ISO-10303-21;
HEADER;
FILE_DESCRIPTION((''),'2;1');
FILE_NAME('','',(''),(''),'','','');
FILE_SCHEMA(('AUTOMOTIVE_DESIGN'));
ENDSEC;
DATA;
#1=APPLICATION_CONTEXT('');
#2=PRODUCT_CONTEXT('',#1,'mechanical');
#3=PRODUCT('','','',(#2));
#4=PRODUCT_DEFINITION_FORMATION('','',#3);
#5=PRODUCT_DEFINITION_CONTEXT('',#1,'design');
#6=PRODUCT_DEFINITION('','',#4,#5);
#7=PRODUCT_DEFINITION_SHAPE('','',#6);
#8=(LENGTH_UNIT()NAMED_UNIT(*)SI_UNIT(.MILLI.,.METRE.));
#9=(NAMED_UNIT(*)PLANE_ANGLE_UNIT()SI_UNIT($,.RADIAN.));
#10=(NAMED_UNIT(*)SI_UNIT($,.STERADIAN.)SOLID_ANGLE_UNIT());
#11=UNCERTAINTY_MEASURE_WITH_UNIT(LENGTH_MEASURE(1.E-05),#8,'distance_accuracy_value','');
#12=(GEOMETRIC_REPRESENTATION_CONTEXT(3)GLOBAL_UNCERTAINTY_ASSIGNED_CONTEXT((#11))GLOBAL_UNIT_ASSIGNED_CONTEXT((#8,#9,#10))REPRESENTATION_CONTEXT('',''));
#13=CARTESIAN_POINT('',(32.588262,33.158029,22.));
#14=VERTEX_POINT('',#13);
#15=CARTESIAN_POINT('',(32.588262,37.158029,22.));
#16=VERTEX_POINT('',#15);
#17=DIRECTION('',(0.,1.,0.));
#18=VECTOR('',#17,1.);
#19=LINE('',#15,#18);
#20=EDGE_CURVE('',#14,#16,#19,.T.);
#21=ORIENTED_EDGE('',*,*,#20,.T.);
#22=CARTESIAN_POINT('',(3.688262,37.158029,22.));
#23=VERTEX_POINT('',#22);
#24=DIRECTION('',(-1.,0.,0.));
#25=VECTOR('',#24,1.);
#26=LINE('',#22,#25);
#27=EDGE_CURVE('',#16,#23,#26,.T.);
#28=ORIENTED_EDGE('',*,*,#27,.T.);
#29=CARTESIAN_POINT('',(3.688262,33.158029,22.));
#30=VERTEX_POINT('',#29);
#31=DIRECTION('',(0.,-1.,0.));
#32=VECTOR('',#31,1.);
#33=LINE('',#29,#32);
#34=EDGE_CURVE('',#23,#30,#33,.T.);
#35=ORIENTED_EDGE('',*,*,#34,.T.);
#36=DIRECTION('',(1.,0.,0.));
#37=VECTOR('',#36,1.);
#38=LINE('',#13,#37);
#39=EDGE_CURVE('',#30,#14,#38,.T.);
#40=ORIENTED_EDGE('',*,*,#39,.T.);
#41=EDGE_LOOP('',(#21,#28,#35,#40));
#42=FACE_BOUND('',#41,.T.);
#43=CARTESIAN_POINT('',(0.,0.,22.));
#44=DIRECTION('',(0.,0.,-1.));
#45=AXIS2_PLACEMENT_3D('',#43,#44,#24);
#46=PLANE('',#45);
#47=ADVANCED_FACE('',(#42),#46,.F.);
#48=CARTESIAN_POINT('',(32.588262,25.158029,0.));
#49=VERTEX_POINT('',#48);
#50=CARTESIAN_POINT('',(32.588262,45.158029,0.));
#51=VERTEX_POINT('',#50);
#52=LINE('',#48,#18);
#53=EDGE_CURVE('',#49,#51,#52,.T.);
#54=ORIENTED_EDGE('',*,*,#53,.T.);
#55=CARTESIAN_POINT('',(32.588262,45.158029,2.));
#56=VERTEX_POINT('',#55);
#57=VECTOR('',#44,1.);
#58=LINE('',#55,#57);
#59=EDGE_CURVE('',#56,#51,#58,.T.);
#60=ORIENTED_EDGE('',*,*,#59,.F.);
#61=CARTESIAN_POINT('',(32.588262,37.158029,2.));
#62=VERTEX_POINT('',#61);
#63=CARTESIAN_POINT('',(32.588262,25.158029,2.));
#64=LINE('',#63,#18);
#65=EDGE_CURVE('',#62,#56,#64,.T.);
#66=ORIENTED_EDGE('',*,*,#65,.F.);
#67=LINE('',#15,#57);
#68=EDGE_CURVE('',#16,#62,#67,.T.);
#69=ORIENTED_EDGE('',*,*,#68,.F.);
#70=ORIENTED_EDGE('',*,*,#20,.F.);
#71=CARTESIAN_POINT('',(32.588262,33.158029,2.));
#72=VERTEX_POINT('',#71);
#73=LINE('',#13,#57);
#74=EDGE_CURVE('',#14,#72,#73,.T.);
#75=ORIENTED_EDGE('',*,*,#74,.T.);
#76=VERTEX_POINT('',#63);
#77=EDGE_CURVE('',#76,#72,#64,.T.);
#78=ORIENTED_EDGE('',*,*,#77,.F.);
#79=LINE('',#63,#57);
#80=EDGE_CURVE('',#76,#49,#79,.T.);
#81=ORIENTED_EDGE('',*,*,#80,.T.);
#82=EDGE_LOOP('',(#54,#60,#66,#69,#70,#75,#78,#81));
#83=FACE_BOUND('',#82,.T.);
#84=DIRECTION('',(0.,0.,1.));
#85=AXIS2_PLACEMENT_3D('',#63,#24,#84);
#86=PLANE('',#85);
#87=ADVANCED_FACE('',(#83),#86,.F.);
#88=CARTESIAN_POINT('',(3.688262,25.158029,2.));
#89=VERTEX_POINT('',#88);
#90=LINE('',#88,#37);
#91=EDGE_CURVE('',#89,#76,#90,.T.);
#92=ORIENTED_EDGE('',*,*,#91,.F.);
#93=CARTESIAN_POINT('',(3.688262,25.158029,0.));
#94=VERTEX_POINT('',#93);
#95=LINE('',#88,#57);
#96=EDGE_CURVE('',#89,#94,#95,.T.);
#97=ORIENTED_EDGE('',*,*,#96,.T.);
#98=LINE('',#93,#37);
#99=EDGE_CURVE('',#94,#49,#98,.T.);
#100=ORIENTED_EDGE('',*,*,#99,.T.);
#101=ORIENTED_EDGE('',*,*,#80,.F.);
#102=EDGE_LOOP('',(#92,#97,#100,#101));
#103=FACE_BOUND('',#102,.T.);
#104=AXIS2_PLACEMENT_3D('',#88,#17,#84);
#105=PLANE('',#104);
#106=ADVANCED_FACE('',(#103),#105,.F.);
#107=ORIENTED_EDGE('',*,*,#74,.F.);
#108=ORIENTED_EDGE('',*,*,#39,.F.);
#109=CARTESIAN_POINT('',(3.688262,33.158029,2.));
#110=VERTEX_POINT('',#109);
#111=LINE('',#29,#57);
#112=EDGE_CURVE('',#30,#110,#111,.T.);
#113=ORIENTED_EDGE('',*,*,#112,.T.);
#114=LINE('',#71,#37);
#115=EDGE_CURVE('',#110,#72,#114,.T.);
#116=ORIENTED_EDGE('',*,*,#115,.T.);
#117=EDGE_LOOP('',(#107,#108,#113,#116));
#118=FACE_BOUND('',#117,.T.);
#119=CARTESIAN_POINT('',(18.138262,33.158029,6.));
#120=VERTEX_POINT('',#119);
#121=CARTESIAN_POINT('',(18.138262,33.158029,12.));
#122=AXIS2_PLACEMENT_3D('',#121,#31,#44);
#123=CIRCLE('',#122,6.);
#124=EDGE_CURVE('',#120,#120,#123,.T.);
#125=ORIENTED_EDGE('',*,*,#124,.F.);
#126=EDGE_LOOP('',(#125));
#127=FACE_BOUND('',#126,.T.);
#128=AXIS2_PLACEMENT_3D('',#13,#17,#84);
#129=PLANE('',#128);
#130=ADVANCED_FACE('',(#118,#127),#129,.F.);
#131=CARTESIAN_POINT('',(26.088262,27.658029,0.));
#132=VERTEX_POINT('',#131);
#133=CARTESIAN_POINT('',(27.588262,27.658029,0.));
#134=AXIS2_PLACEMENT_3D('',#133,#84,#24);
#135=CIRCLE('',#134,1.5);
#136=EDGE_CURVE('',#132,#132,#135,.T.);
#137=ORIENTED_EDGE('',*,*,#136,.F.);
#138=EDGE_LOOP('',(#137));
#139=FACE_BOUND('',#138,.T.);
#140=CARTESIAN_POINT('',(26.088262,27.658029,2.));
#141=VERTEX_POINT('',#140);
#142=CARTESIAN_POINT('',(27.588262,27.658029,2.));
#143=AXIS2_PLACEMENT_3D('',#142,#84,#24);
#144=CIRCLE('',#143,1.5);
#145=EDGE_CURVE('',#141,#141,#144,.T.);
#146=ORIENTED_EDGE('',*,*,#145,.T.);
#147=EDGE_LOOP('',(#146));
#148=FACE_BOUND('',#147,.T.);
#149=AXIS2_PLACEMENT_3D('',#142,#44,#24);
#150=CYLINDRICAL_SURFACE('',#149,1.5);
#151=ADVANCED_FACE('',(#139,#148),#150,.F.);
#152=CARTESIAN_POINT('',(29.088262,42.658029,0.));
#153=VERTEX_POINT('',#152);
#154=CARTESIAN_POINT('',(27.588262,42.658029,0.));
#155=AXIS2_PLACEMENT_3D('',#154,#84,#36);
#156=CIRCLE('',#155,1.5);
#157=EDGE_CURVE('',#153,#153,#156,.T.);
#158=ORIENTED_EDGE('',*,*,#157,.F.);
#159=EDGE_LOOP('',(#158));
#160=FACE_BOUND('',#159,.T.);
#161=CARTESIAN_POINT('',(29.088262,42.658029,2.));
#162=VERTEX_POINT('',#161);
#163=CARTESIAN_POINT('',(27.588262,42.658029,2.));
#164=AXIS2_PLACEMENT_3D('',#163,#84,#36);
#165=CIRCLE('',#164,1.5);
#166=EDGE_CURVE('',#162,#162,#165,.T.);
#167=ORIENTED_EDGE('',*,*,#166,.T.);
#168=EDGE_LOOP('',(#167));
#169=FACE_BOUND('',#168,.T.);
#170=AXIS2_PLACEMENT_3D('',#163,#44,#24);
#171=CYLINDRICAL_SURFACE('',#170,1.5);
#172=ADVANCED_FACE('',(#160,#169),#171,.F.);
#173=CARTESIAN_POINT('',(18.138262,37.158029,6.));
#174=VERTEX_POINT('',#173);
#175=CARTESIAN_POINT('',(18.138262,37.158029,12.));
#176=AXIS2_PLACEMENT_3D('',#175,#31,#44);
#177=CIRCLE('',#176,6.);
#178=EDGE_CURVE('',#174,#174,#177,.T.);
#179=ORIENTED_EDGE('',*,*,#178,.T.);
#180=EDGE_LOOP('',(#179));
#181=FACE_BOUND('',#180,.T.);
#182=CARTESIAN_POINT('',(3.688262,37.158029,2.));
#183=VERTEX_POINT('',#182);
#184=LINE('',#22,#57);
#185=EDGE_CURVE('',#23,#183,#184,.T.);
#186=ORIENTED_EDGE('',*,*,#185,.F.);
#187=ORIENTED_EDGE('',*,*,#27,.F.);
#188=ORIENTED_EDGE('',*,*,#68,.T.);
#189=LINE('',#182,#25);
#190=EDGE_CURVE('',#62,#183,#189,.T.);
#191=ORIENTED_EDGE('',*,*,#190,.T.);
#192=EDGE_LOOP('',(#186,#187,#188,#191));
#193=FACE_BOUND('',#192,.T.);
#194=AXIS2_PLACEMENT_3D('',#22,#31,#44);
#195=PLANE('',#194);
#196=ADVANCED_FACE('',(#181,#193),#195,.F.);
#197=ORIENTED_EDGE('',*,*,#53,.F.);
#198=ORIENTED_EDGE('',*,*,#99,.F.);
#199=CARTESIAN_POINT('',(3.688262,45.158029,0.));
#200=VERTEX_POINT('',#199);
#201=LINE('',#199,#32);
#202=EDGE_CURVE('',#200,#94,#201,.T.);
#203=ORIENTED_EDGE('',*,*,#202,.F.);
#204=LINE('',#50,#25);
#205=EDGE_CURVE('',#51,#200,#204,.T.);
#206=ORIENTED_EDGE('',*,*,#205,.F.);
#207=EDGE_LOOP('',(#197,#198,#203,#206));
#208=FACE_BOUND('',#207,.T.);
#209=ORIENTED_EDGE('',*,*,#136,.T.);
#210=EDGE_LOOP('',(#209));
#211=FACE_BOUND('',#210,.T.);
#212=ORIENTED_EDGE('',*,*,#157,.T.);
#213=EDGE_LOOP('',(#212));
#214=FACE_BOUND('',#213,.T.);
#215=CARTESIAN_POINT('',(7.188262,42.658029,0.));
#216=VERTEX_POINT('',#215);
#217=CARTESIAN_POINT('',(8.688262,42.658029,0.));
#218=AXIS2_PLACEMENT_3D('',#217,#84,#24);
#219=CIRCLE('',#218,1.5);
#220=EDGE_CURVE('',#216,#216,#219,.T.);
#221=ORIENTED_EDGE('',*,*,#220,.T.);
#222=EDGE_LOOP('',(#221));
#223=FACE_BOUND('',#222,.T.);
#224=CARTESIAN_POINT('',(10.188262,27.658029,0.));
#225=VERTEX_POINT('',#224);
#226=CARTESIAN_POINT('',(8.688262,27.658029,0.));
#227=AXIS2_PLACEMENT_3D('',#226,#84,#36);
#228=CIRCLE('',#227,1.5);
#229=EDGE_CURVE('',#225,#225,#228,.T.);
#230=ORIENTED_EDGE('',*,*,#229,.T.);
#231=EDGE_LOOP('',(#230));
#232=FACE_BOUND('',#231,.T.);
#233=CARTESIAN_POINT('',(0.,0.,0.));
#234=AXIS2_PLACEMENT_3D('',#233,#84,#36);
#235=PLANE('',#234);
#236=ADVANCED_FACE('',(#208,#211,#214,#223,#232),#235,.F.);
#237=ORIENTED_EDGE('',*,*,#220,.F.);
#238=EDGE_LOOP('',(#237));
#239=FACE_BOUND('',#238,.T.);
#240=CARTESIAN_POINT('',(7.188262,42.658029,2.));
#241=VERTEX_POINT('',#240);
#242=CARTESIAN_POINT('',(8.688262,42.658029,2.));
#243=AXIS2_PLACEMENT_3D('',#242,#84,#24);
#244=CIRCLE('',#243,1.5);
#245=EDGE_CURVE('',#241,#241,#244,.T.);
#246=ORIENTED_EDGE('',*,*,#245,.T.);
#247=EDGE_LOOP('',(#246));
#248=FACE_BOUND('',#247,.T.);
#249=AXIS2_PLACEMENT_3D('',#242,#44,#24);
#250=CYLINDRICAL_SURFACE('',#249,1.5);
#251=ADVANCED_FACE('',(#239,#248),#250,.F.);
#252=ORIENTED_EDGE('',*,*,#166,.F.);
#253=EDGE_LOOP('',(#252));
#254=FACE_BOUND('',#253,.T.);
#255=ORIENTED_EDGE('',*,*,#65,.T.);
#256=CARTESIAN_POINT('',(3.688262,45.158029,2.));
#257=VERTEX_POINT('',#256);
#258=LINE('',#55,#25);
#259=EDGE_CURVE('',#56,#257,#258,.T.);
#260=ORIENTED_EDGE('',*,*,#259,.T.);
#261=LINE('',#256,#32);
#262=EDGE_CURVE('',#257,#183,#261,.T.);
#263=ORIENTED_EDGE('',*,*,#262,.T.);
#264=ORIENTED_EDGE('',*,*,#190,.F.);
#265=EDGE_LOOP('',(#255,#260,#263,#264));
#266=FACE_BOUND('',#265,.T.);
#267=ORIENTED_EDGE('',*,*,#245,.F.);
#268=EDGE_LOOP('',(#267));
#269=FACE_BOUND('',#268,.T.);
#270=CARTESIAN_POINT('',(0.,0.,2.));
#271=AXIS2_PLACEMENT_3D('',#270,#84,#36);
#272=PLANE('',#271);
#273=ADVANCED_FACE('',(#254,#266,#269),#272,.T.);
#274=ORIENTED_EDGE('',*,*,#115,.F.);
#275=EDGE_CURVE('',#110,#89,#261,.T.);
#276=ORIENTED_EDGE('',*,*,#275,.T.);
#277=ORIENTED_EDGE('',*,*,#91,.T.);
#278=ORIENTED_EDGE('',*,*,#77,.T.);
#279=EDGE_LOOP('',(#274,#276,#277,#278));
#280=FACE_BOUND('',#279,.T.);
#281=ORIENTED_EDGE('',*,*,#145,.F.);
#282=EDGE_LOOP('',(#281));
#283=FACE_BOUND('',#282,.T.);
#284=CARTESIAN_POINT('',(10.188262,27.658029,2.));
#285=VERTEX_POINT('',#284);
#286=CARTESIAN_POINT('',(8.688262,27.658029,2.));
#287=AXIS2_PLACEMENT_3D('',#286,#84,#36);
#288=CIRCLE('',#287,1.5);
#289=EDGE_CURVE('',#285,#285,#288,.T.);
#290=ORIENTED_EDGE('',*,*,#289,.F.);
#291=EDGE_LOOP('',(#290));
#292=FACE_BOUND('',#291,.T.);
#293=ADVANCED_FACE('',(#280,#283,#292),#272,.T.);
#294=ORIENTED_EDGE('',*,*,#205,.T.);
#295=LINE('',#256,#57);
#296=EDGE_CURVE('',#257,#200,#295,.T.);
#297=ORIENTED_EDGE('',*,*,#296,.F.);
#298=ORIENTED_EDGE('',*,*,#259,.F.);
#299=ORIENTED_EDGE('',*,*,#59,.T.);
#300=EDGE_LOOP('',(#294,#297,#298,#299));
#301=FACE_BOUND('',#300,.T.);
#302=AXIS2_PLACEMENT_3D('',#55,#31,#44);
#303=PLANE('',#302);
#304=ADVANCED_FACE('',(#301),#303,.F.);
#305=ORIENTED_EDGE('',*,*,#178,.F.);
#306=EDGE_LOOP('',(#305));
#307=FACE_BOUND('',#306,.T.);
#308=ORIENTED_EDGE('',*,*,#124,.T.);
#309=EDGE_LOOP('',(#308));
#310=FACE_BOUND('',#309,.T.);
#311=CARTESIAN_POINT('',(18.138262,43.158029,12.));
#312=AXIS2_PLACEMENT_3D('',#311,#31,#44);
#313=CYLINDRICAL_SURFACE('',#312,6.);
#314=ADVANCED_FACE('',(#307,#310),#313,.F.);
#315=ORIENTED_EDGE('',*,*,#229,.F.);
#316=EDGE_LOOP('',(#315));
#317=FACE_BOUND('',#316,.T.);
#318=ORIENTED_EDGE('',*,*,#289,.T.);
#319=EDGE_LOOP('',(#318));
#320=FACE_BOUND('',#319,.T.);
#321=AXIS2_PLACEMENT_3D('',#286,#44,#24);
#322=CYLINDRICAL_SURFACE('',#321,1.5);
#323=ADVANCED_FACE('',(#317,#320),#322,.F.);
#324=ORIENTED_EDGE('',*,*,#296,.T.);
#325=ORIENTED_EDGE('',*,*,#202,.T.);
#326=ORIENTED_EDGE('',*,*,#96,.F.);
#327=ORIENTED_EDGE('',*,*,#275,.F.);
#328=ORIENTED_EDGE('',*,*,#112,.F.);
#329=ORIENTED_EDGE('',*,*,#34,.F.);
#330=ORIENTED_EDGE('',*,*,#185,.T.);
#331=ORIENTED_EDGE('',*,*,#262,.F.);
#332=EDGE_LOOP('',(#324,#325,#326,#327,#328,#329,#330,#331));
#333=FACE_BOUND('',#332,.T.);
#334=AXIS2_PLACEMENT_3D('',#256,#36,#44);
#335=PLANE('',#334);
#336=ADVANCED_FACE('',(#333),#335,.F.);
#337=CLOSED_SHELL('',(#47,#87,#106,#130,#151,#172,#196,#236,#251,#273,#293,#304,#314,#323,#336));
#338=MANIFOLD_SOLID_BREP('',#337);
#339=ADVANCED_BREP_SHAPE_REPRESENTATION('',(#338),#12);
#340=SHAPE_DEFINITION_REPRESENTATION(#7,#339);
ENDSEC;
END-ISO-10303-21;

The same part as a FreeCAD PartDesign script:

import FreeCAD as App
import Part
import Sketcher

V = App.Vector
Q = App.Units.Quantity


def add_polygon(sketch, points):
    """Adds a closed chain of lines whose ends are joined by coincident constraints."""
    first, n = sketch.GeometryCount, len(points)
    for a, b in zip(points, points[1:] + points[:1]):
        sketch.addGeometry(Part.LineSegment(App.Vector(*a, 0), App.Vector(*b, 0)), False)
    for i in range(n):
        sketch.addConstraint(Sketcher.Constraint("Coincident", first + i, 2, first + (i + 1) % n, 1))

doc = App.newDocument("Part")
body = doc.addObject("PartDesign::Body", "Body")

# Sketch on XY plane
sketch1 = body.newObject("Sketcher::SketchObject", "Sketch")
sketch1.AttachmentSupport = (doc.getObject("XY_Plane"), [""])
sketch1.MapMode = "FlatFace"
add_polygon(sketch1, [(3.7, 45.2), (3.7, 25.2), (32.6, 25.2), (32.6, 45.2)])  # lines 0-3
sketch1.addGeometry(Part.Circle(V(8.7, 27.7, 0), V(0, 0, 1), 1.5), False)  # 4
sketch1.addGeometry(Part.Circle(V(27.6, 27.7, 0), V(0, 0, 1), 1.5), False)  # 5
sketch1.addGeometry(Part.Circle(V(8.7, 42.7, 0), V(0, 0, 1), 1.5), False)  # 6
sketch1.addGeometry(Part.Circle(V(27.6, 42.7, 0), V(0, 0, 1), 1.5), False)  # 7
sketch1.addConstraint(Sketcher.Constraint("Vertical", 0))
sketch1.addConstraint(Sketcher.Constraint("Horizontal", 1))
sketch1.addConstraint(Sketcher.Constraint("Vertical", 2))
sketch1.addConstraint(Sketcher.Constraint("Horizontal", 3))
sketch1.addConstraint(Sketcher.Constraint("Equal", 4, 5))
sketch1.addConstraint(Sketcher.Constraint("Equal", 5, 6))
sketch1.addConstraint(Sketcher.Constraint("Equal", 6, 7))
sketch1.addConstraint(Sketcher.Constraint("Horizontal", 4, 3, 5, 3))
sketch1.addConstraint(Sketcher.Constraint("Horizontal", 6, 3, 7, 3))
sketch1.addConstraint(Sketcher.Constraint("Vertical", 4, 3, 6, 3))
sketch1.addConstraint(Sketcher.Constraint("Vertical", 5, 3, 7, 3))
sketch1.addConstraint(Sketcher.Constraint("Diameter", 4, Q("3 mm")))
sketch1.addConstraint(Sketcher.Constraint("DistanceY", 0, 2, 0, 1, Q("20 mm")))
sketch1.addConstraint(Sketcher.Constraint("DistanceX", 1, 1, 1, 2, Q("28.9 mm")))
sketch1.addConstraint(Sketcher.Constraint("DistanceY", 4, 3, 6, 3, Q("15 mm")))
sketch1.addConstraint(Sketcher.Constraint("DistanceX", 0, 2, 4, 3, Q("5 mm")))
sketch1.addConstraint(Sketcher.Constraint("DistanceX", 5, 3, 1, 2, Q("5 mm")))
sketch1.addConstraint(Sketcher.Constraint("DistanceY", 0, 2, 4, 3, Q("2.5 mm")))
sketch1.addConstraint(Sketcher.Constraint("DistanceY", -1, 1, 4, 3, Q("27.658029 mm")))
sketch1.addConstraint(Sketcher.Constraint("DistanceX", -1, 1, 4, 3, Q("8.688262 mm")))
pad1 = body.newObject("PartDesign::Pad", "Pad")
pad1.Profile = sketch1
pad1.Length = 2

# Sketch on XY plane
sketch2 = body.newObject("Sketcher::SketchObject", "Sketch001")
sketch2.AttachmentSupport = (doc.getObject("XY_Plane"), [""])
sketch2.MapMode = "FlatFace"
sketch2.AttachmentOffset = App.Placement(V(0, 0, 2), App.Rotation())
add_polygon(sketch2, [(3.7, 37.2), (3.7, 33.2), (32.6, 33.2), (32.6, 37.2)])  # lines 0-3
sketch2.addConstraint(Sketcher.Constraint("Vertical", 0))
sketch2.addConstraint(Sketcher.Constraint("Horizontal", 1))
sketch2.addConstraint(Sketcher.Constraint("Vertical", 2))
sketch2.addConstraint(Sketcher.Constraint("Horizontal", 3))
sketch2.addConstraint(Sketcher.Constraint("DistanceY", 0, 2, 0, 1, Q("4 mm")))
sketch2.addConstraint(Sketcher.Constraint("DistanceX", 1, 1, 1, 2, Q("28.9 mm")))
sketch2.addConstraint(Sketcher.Constraint("DistanceY", -1, 1, 0, 2, Q("33.158029 mm")))
sketch2.addConstraint(Sketcher.Constraint("DistanceX", -1, 1, 0, 2, Q("3.688262 mm")))
pad2 = body.newObject("PartDesign::Pad", "Pad001")
pad2.Profile = sketch2
pad2.Length = 20

# Sketch on XZ plane
sketch3 = body.newObject("Sketcher::SketchObject", "Sketch002")
sketch3.AttachmentSupport = (doc.getObject("XZ_Plane"), [""])
sketch3.MapMode = "FlatFace"
sketch3.AttachmentOffset = App.Placement(V(0, 0, -33.158029), App.Rotation())
sketch3.addGeometry(Part.Circle(V(18, 12, 0), V(0, 0, 1), 6), False)
sketch3.addConstraint(Sketcher.Constraint("Diameter", 0, Q("12 mm")))
sketch3.addConstraint(Sketcher.Constraint("DistanceY", -1, 1, 0, 3, Q("12 mm")))
sketch3.addConstraint(Sketcher.Constraint("DistanceX", -1, 1, 0, 3, Q("18.138262 mm")))
pocket1 = body.newObject("PartDesign::Pocket", "Pocket")
pocket1.Profile = sketch3
pocket1.Length = 10

doc.recompute()
